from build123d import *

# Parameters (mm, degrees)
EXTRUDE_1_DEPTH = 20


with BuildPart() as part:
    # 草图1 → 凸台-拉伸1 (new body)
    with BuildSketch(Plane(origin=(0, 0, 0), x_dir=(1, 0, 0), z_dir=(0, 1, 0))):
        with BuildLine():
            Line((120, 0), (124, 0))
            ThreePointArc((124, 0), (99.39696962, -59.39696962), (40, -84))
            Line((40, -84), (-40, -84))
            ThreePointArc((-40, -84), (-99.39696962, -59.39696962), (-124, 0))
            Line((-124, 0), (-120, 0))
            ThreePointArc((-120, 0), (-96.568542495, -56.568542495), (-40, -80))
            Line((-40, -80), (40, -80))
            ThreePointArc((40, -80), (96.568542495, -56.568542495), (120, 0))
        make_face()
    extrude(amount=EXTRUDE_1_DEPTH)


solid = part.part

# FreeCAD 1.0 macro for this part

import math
import FreeCAD as App
import Part
import Sketcher

doc = App.newDocument("Part")
params = doc.addObject("Spreadsheet::Sheet", "Params")
for row, (alias, value) in enumerate([
    ("sketch1_radius", "80 mm"),
    ("sketch1_radius2", "84 mm"),
    ("sketch1_width", "80 mm"),
    ("pad1_length", "20 mm"),
], start=1):
    params.set(f"A{row}", alias)
    params.set(f"B{row}", "=" + value)
    params.setAlias(f"B{row}", alias)

body = doc.addObject("PartDesign::Body", "Body")

# Sketch on XZ plane
sketch1 = body.newObject("Sketcher::SketchObject", "Sketch")
sketch1.AttachmentSupport = (doc.getObject("XZ_Plane"), [""])
sketch1.MapMode = "FlatFace"
sketch1.addGeometry([
    Part.LineSegment(App.Vector(124, 0, 0), App.Vector(120, 0, 0)),  # 0
    Part.ArcOfCircle(Part.Circle(App.Vector(40, 0, 0), App.Vector(0, 0, 1), 80), math.radians(0), math.radians(90)),  # 1
    Part.LineSegment(App.Vector(40, 80, 0), App.Vector(-40, 80, 0)),  # 2
    Part.ArcOfCircle(Part.Circle(App.Vector(-40, 0, 0), App.Vector(0, 0, 1), 80), math.radians(90), math.radians(180)),  # 3
    Part.LineSegment(App.Vector(-120, 0, 0), App.Vector(-124, 0, 0)),  # 4
    Part.ArcOfCircle(Part.Circle(App.Vector(-40, 0, 0), App.Vector(0, 0, 1), 84), math.radians(90), math.radians(180)),  # 5
    Part.LineSegment(App.Vector(-40, 84, 0), App.Vector(40, 84, 0)),  # 6
    Part.ArcOfCircle(Part.Circle(App.Vector(40, 0, 0), App.Vector(0, 0, 1), 84), math.radians(0), math.radians(90)),  # 7
], False)
sketch1.addConstraint([
    Sketcher.Constraint("Coincident", 0, 2, 1, 1),
    Sketcher.Constraint("Tangent", 1, 2, 2, 1),
    Sketcher.Constraint("Tangent", 2, 2, 3, 1),
    Sketcher.Constraint("Coincident", 3, 2, 4, 1),
    Sketcher.Constraint("Coincident", 4, 2, 5, 2),
    Sketcher.Constraint("Tangent", 5, 1, 6, 1),
    Sketcher.Constraint("Tangent", 6, 2, 7, 2),
    Sketcher.Constraint("Coincident", 7, 1, 0, 1),
    Sketcher.Constraint("Horizontal", 0),
    Sketcher.Constraint("Horizontal", 2),
    Sketcher.Constraint("Horizontal", 4),
    Sketcher.Constraint("Horizontal", 6),
    Sketcher.Constraint("Coincident", 5, 3, 3, 3),
    Sketcher.Constraint("Coincident", 7, 3, 1, 3),
    Sketcher.Constraint("Equal", 1, 3),
    Sketcher.Constraint("Symmetric", 1, 3, 3, 3, -1, 1),
    Sketcher.Constraint("PointOnObject", 0, 2, -1),
    Sketcher.Constraint("PointOnObject", 3, 2, -1),
    Sketcher.Constraint("Radius", 1, 80.0),
    Sketcher.Constraint("Radius", 5, 84.0),
    Sketcher.Constraint("DistanceX", 2, 2, 2, 1, 80.0),
])
sketch1.setExpression("Constraints[18]", "Params.sketch1_radius")
sketch1.setExpression("Constraints[19]", "Params.sketch1_radius2")
sketch1.setExpression("Constraints[20]", "Params.sketch1_width")
pad1 = body.newObject("PartDesign::Pad", "Pad")
pad1.Profile = sketch1
pad1.setExpression("Length", "Params.pad1_length")
pad1.Reversed = True

doc.recompute()
